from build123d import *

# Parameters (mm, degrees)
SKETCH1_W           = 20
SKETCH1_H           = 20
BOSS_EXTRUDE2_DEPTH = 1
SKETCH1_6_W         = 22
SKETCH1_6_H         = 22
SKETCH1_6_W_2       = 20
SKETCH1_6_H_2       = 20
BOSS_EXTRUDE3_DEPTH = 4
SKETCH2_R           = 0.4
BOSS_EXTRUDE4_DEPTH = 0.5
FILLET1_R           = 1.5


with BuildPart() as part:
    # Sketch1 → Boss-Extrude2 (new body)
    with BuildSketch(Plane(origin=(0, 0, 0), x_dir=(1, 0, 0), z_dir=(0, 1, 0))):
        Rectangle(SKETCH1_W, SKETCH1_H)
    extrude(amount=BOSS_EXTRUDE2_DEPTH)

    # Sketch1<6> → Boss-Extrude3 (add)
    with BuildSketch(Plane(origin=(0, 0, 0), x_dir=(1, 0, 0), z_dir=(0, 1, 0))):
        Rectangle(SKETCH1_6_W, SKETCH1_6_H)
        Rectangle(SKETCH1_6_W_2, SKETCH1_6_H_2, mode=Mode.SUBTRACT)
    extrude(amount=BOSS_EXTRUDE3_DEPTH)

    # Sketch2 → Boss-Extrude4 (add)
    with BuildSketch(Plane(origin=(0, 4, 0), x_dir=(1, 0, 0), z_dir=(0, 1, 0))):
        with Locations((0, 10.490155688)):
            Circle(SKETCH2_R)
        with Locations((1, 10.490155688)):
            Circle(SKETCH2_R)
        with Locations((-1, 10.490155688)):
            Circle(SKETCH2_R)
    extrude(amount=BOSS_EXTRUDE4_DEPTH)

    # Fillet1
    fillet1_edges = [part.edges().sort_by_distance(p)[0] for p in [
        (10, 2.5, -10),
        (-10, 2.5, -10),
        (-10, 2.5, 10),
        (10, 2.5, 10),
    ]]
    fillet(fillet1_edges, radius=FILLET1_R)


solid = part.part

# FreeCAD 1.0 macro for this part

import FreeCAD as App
import Part
import Sketcher
Q = App.Units.Quantity


def edges_at(feature, points):
    """Names of the edges that pass closest to the given points."""
    edges = feature.Shape.Edges
    near = lambda p: min(range(len(edges)), key=lambda i: edges[i].distToShape(Part.Vertex(*p))[0])
    return sorted({f"Edge{near(p) + 1}" for p in points})


def add_polygon(sketch, points):
    """Adds a closed chain of lines whose ends are joined by coincident constraints."""
    first, n = sketch.GeometryCount, len(points)
    for a, b in zip(points, points[1:] + points[:1]):
        sketch.addGeometry(Part.LineSegment(App.Vector(*a, 0), App.Vector(*b, 0)), False)
    for i in range(n):
        sketch.addConstraint(Sketcher.Constraint("Coincident", first + i, 2, first + (i + 1) % n, 1))

doc = App.newDocument("Part")
body = doc.addObject("PartDesign::Body", "Body")

# Sketch on XZ plane
sketch1 = body.newObject("Sketcher::SketchObject", "Sketch")
sketch1.AttachmentSupport = (doc.getObject("XZ_Plane"), [""])
sketch1.MapMode = "FlatFace"
add_polygon(sketch1, [(-10, -10), (-10, 10), (10, 10), (10, -10)])  # lines 0-3
sketch1.addConstraint(Sketcher.Constraint("Vertical", 0))
sketch1.addConstraint(Sketcher.Constraint("Horizontal", 1))
sketch1.addConstraint(Sketcher.Constraint("Vertical", 2))
sketch1.addConstraint(Sketcher.Constraint("Horizontal", 3))
sketch1.addConstraint(Sketcher.Constraint("Symmetric", 0, 2, 2, 2, -1, 1))
sketch1.addConstraint(Sketcher.Constraint("Equal", 3, 0))
sketch1.addConstraint(Sketcher.Constraint("DistanceX", 1, 1, 1, 2, Q("20 mm")))
pad1 = body.newObject("PartDesign::Pad", "Pad")
pad1.Profile = sketch1
pad1.Length = 1
pad1.Reversed = True

# Sketch on XZ plane
sketch2 = body.newObject("Sketcher::SketchObject", "Sketch001")
sketch2.AttachmentSupport = (doc.getObject("XZ_Plane"), [""])
sketch2.MapMode = "FlatFace"
add_polygon(sketch2, [(-11, -11), (-11, 11), (11, 11), (11, -11)])  # lines 0-3
add_polygon(sketch2, [(10, 10), (-10, 10), (-10, -10), (10, -10)])  # lines 4-7
sketch2.addConstraint(Sketcher.Constraint("Vertical", 0))
sketch2.addConstraint(Sketcher.Constraint("Horizontal", 1))
sketch2.addConstraint(Sketcher.Constraint("Vertical", 2))
sketch2.addConstraint(Sketcher.Constraint("Horizontal", 3))
sketch2.addConstraint(Sketcher.Constraint("Horizontal", 4))
sketch2.addConstraint(Sketcher.Constraint("Vertical", 5))
sketch2.addConstraint(Sketcher.Constraint("Horizontal", 6))
sketch2.addConstraint(Sketcher.Constraint("Vertical", 7))
sketch2.addConstraint(Sketcher.Constraint("Symmetric", 0, 2, 2, 2, -1, 1))
sketch2.addConstraint(Sketcher.Constraint("Symmetric", 4, 2, 6, 2, -1, 1))
sketch2.addConstraint(Sketcher.Constraint("Equal", 3, 0))
sketch2.addConstraint(Sketcher.Constraint("Equal", 6, 5))
sketch2.addConstraint(Sketcher.Constraint("DistanceX", 1, 1, 1, 2, Q("22 mm")))
sketch2.addConstraint(Sketcher.Constraint("DistanceX", 4, 2, 4, 1, Q("20 mm")))
pad2 = body.newObject("PartDesign::Pad", "Pad001")
pad2.Profile = sketch2
pad2.Length = 4
pad2.Reversed = True

# Sketch on XZ plane
sketch3 = body.newObject("Sketcher::SketchObject", "Sketch002")
sketch3.AttachmentSupport = (doc.getObject("XZ_Plane"), [""])
sketch3.MapMode = "FlatFace"
sketch3.AttachmentOffset = App.Placement(App.Vector(0, 0, -4), App.Rotation())
sketch3.addGeometry(Part.Circle(App.Vector(0, -10.49, 0), App.Vector(0, 0, 1), 0.4), False)
sketch3.addGeometry(Part.Circle(App.Vector(1, -10.49, 0), App.Vector(0, 0, 1), 0.4), False)
sketch3.addGeometry(Part.Circle(App.Vector(-1, -10.49, 0), App.Vector(0, 0, 1), 0.4), False)
sketch3.addConstraint(Sketcher.Constraint("Equal", 0, 1))
sketch3.addConstraint(Sketcher.Constraint("Equal", 1, 2))
sketch3.addConstraint(Sketcher.Constraint("Symmetric", 1, 3, 2, 3, -2))
sketch3.addConstraint(Sketcher.Constraint("PointOnObject", 0, 3, -2))
sketch3.addConstraint(Sketcher.Constraint("Horizontal", 0, 3, 1, 3))
sketch3.addConstraint(Sketcher.Constraint("Diameter", 0, Q("0.8 mm")))
sketch3.addConstraint(Sketcher.Constraint("DistanceX", -1, 1, 1, 3, Q("1 mm")))
sketch3.addConstraint(Sketcher.Constraint("DistanceY", 0, 3, -1, 1, Q("10.490156 mm")))
pad3 = body.newObject("PartDesign::Pad", "Pad002")
pad3.Profile = sketch3
pad3.Length = 0.5
pad3.Reversed = True
doc.recompute()

fillet = body.newObject("PartDesign::Fillet", "Fillet")
fillet.Base = (pad3, edges_at(pad3, [
    (10, 2.5, -10),
    (-10, 2.5, -10),
    (-10, 2.5, 10),
    (10, 2.5, 10),
]))
fillet.Radius = 1.5

doc.recompute()
